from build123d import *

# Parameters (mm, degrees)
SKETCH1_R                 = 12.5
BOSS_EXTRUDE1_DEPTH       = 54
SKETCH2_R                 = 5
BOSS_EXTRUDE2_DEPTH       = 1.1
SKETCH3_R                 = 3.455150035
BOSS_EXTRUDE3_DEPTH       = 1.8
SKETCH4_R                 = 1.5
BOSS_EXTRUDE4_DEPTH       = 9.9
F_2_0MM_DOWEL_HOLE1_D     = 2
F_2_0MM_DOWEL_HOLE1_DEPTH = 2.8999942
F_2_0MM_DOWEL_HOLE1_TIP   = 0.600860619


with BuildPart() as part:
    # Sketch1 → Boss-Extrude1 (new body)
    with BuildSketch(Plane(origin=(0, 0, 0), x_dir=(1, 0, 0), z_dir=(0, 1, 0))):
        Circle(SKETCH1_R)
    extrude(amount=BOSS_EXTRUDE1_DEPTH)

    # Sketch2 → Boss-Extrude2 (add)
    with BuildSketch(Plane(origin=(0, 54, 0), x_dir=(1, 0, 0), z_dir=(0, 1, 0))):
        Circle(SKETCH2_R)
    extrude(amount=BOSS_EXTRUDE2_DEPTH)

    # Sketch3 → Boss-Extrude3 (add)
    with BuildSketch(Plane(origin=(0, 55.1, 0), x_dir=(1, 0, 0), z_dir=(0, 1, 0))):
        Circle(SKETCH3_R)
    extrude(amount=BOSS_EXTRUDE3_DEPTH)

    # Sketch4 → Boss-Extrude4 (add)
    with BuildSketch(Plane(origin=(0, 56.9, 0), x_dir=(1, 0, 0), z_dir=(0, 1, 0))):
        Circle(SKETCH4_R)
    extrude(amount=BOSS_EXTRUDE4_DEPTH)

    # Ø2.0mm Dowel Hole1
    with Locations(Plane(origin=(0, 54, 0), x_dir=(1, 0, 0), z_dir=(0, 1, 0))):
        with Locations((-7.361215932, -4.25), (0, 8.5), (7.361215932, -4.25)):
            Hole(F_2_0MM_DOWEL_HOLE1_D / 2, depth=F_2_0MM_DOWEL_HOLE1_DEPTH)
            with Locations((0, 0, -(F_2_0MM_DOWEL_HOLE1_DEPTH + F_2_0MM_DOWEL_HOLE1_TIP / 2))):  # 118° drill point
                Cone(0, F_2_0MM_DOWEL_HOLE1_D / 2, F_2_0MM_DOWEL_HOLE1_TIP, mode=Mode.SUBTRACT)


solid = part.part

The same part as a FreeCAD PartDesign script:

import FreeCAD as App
import Part
import Sketcher
from FreeCAD import Vector
Q = App.Units.Quantity

doc = App.newDocument("Part")
body = doc.addObject("PartDesign::Body", "Body")

sketch1 = body.newObject("Sketcher::SketchObject", "Sketch")
sketch1.AttachmentSupport = (doc.getObject("XZ_Plane"), [""])
sketch1.MapMode = "FlatFace"
sketch1.addGeometry(Part.Circle(Vector(0, 0, 0), Vector(0, 0, 1), 12), False)
sketch1.addConstraint(Sketcher.Constraint("Coincident", 0, 3, -1, 1))
sketch1.addConstraint(Sketcher.Constraint("Diameter", 0, Q("25 mm")))
pad1 = body.newObject("PartDesign::Pad", "Pad")
pad1.Profile = sketch1
pad1.Length = 54
pad1.Reversed = True

sketch2 = body.newObject("Sketcher::SketchObject", "Sketch001")
sketch2.AttachmentSupport = (doc.getObject("XZ_Plane"), [""])
sketch2.MapMode = "FlatFace"
sketch2.AttachmentOffset = App.Placement(Vector(0, 0, -54), App.Rotation())
sketch2.addGeometry(Part.Circle(Vector(0, 0, 0), Vector(0, 0, 1), 5), False)
sketch2.addConstraint(Sketcher.Constraint("Coincident", 0, 3, -1, 1))
sketch2.addConstraint(Sketcher.Constraint("Diameter", 0, Q("10 mm")))
pad2 = body.newObject("PartDesign::Pad", "Pad001")
pad2.Profile = sketch2
pad2.Length = 1.1
pad2.Reversed = True

sketch3 = body.newObject("Sketcher::SketchObject", "Sketch002")
sketch3.AttachmentSupport = (doc.getObject("XZ_Plane"), [""])
sketch3.MapMode = "FlatFace"
sketch3.AttachmentOffset = App.Placement(Vector(0, 0, -55.1), App.Rotation())
sketch3.addGeometry(Part.Circle(Vector(0, 0, 0), Vector(0, 0, 1), 3.5), False)
sketch3.addConstraint(Sketcher.Constraint("Coincident", 0, 3, -1, 1))
sketch3.addConstraint(Sketcher.Constraint("Diameter", 0, Q("6.9103 mm")))
pad3 = body.newObject("PartDesign::Pad", "Pad002")
pad3.Profile = sketch3
pad3.Length = 1.8
pad3.Reversed = True

sketch4 = body.newObject("Sketcher::SketchObject", "Sketch003")
sketch4.AttachmentSupport = (doc.getObject("XZ_Plane"), [""])
sketch4.MapMode = "FlatFace"
sketch4.AttachmentOffset = App.Placement(Vector(0, 0, -56.9), App.Rotation())
sketch4.addGeometry(Part.Circle(Vector(0, 0, 0), Vector(0, 0, 1), 1.5), False)
sketch4.addConstraint(Sketcher.Constraint("Coincident", 0, 3, -1, 1))
sketch4.addConstraint(Sketcher.Constraint("Diameter", 0, Q("3 mm")))
pad4 = body.newObject("PartDesign::Pad", "Pad003")
pad4.Profile = sketch4
pad4.Length = 9.9
pad4.Reversed = True

sketch5 = body.newObject("Sketcher::SketchObject", "Sketch004")
sketch5.AttachmentSupport = (doc.getObject("XZ_Plane"), [""])
sketch5.MapMode = "FlatFace"
sketch5.AttachmentOffset = App.Placement(Vector(0, 0, -54), App.Rotation())
sketch5.addGeometry(Part.Circle(Vector(-7.4, 4.2, 0), Vector(0, 0, 1), 1), False)
sketch5.addGeometry(Part.Circle(Vector(0, -8.5, 0), Vector(0, 0, 1), 1), False)
sketch5.addGeometry(Part.Circle(Vector(7.4, 4.2, 0), Vector(0, 0, 1), 1), False)
sketch5.addConstraint(Sketcher.Constraint("Equal", 0, 1))
sketch5.addConstraint(Sketcher.Constraint("Equal", 1, 2))
sketch5.addConstraint(Sketcher.Constraint("Symmetric", 0, 3, 2, 3, -2))
sketch5.addConstraint(Sketcher.Constraint("PointOnObject", 1, 3, -2))
sketch5.addConstraint(Sketcher.Constraint("Diameter", 0, Q("2 mm")))
sketch5.addConstraint(Sketcher.Constraint("DistanceY", 1, 3, -1, 1, Q("8.5 mm")))
sketch5.addConstraint(Sketcher.Constraint("DistanceY", -1, 1, 0, 3, Q("4.25 mm")))
sketch5.addConstraint(Sketcher.Constraint("DistanceX", 0, 3, 2, 3, Q("14.722432 mm")))
doc.recompute()
hole = body.newObject("PartDesign::Hole", "Hole")
hole.Profile = sketch5
hole.ThreadType = "None"
hole.Diameter = 2
hole.DepthType = "Dimension"
hole.Depth = 2.899994
hole.DrillPoint = "Angled"
hole.DrillPointAngle = 118
hole.Reversed = True

doc.recompute()
